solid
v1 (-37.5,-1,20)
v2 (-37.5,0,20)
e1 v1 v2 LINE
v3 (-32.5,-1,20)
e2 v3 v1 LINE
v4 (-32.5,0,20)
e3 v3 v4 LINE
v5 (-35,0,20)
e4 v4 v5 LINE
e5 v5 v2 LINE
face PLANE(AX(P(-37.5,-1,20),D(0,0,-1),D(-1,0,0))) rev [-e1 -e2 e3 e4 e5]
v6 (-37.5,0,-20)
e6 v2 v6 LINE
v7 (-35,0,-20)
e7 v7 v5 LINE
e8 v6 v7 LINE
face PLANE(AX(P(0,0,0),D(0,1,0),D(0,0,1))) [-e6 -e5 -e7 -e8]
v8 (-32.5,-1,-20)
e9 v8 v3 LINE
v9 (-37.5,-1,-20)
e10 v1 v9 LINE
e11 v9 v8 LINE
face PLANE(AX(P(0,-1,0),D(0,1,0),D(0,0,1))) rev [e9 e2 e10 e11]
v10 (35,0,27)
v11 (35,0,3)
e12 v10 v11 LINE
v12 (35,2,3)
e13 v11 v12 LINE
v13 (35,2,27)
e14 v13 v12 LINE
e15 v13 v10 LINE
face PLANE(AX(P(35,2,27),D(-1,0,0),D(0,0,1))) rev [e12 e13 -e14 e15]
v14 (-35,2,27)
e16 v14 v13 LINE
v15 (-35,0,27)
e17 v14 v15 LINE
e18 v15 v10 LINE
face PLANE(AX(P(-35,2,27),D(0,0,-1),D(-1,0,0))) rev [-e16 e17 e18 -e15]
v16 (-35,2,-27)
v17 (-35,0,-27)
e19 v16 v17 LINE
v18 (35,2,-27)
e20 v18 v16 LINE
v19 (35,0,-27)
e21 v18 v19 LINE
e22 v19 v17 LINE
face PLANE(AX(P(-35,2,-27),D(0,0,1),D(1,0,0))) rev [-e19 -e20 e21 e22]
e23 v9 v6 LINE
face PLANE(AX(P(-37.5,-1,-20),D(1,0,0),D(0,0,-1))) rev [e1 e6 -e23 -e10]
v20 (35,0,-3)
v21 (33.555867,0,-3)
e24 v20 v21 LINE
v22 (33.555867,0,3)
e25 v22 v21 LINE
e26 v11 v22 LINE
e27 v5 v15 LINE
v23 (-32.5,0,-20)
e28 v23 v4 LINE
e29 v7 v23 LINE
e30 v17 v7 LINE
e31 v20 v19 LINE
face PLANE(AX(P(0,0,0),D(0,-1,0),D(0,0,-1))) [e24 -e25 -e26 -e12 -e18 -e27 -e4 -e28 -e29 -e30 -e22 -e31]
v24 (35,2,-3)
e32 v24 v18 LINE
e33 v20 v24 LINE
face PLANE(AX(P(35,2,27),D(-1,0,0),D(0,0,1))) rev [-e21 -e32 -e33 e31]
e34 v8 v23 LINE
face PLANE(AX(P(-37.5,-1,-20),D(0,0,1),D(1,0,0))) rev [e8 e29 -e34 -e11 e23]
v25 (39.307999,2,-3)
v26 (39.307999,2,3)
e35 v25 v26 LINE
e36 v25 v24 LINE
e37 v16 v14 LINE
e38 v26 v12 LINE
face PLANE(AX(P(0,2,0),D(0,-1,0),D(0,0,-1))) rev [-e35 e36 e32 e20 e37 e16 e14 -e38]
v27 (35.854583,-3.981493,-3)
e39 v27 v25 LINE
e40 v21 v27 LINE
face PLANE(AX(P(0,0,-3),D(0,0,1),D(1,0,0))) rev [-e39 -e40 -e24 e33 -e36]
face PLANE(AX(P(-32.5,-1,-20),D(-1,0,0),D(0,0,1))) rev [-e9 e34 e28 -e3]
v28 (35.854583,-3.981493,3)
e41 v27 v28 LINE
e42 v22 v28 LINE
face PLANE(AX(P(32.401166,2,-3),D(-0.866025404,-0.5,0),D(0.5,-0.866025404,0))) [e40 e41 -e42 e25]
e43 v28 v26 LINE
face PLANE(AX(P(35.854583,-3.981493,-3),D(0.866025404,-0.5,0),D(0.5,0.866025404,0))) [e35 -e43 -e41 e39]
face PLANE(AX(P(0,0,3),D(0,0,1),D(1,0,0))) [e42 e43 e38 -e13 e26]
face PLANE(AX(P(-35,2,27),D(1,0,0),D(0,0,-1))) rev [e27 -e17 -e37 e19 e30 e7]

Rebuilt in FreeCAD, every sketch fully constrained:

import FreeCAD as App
import Part
import Sketcher
Q = App.Units.Quantity


def add_polygon(sketch, points):
    """Adds a closed chain of lines whose ends are joined by coincident constraints."""
    first, n = sketch.GeometryCount, len(points)
    for a, b in zip(points, points[1:] + points[:1]):
        sketch.addGeometry(Part.LineSegment(App.Vector(*a, 0), App.Vector(*b, 0)), False)
    for i in range(n):
        sketch.addConstraint(Sketcher.Constraint("Coincident", first + i, 2, first + (i + 1) % n, 1))

doc = App.newDocument("Part")
body = doc.addObject("PartDesign::Body", "Body")

sketch1 = doc.addObject("Sketcher::SketchObject", "Sketch")
body.addObject(sketch1)
sketch1.AttachmentSupport = (doc.XZ_Plane, [""])
sketch1.MapMode = "FlatFace"
add_polygon(sketch1, [(-35, -27), (-35, 27), (35, 27), (35, -27)])
sketch1.addConstraint(Sketcher.Constraint("Vertical", 0))
sketch1.addConstraint(Sketcher.Constraint("Horizontal", 1))
sketch1.addConstraint(Sketcher.Constraint("Vertical", 2))
sketch1.addConstraint(Sketcher.Constraint("Horizontal", 3))
sketch1.addConstraint(Sketcher.Constraint("Symmetric", 0, 2, 2, 2, -1, 1))
sketch1.addConstraint(Sketcher.Constraint("DistanceX", 1, 1, 1, 2, 70.0))
sketch1.addConstraint(Sketcher.Constraint("DistanceY", 0, 1, 0, 2, 54.0))
pad1 = doc.addObject("PartDesign::Pad", "Pad")
body.addObject(pad1)
pad1.Profile = sketch1
pad1.Length = 2
pad1.Reversed = True

sketch2 = doc.addObject("Sketcher::SketchObject", "Sketch001")
body.addObject(sketch2)
sketch2.AttachmentSupport = (doc.XZ_Plane, [""])
sketch2.MapMode = "FlatFace"
add_polygon(sketch2, [(-38, 20), (-38, -20), (-32, -20), (-32, 20)])
sketch2.addConstraint(Sketcher.Constraint("Vertical", 0))
sketch2.addConstraint(Sketcher.Constraint("Horizontal", 1))
sketch2.addConstraint(Sketcher.Constraint("Vertical", 2))
sketch2.addConstraint(Sketcher.Constraint("Horizontal", 3))
sketch2.addConstraint(Sketcher.Constraint("DistanceX", 1, 1, 1, 2, 5.0))
sketch2.addConstraint(Sketcher.Constraint("DistanceY", 0, 2, 0, 1, 40.0))
sketch2.addConstraint(Sketcher.Constraint("DistanceY", 0, 2, -1, 1, 20.0))
sketch2.addConstraint(Sketcher.Constraint("DistanceX", 0, 2, -1, 1, 37.5))
pad2 = doc.addObject("PartDesign::Pad", "Pad001")
body.addObject(pad2)
pad2.Profile = sketch2
pad2.Length = 1

sketch3 = doc.addObject("Sketcher::SketchObject", "Sketch002")
body.addObject(sketch3)
sketch3.AttachmentSupport = (doc.XY_Plane, [""])
sketch3.MapMode = "FlatFace"
sketch3.AttachmentOffset = App.Placement(App.Vector(0, 0, 3), App.Rotation())
add_polygon(sketch3, [(36, -4), (39, 2), (32, 2)])
sketch3.addConstraint(Sketcher.Constraint("Horizontal", 1))
sketch3.addConstraint(Sketcher.Constraint("Equal", 0, 2))
sketch3.addConstraint(Sketcher.Constraint("Angle", 0, Q("60 deg")))
sketch3.addConstraint(Sketcher.Constraint("DistanceY", -1, 1, 0, 2, 2.0))
sketch3.addConstraint(Sketcher.Constraint("DistanceX", -1, 1, 0, 2, 39.307999))
sketch3.addConstraint(Sketcher.Constraint("DistanceX", 1, 2, 1, 1, 6.906833))
pad3 = doc.addObject("PartDesign::Pad", "Pad002")
body.addObject(pad3)
pad3.Profile = sketch3
pad3.Length = 6
pad3.Reversed = True

doc.recompute()
